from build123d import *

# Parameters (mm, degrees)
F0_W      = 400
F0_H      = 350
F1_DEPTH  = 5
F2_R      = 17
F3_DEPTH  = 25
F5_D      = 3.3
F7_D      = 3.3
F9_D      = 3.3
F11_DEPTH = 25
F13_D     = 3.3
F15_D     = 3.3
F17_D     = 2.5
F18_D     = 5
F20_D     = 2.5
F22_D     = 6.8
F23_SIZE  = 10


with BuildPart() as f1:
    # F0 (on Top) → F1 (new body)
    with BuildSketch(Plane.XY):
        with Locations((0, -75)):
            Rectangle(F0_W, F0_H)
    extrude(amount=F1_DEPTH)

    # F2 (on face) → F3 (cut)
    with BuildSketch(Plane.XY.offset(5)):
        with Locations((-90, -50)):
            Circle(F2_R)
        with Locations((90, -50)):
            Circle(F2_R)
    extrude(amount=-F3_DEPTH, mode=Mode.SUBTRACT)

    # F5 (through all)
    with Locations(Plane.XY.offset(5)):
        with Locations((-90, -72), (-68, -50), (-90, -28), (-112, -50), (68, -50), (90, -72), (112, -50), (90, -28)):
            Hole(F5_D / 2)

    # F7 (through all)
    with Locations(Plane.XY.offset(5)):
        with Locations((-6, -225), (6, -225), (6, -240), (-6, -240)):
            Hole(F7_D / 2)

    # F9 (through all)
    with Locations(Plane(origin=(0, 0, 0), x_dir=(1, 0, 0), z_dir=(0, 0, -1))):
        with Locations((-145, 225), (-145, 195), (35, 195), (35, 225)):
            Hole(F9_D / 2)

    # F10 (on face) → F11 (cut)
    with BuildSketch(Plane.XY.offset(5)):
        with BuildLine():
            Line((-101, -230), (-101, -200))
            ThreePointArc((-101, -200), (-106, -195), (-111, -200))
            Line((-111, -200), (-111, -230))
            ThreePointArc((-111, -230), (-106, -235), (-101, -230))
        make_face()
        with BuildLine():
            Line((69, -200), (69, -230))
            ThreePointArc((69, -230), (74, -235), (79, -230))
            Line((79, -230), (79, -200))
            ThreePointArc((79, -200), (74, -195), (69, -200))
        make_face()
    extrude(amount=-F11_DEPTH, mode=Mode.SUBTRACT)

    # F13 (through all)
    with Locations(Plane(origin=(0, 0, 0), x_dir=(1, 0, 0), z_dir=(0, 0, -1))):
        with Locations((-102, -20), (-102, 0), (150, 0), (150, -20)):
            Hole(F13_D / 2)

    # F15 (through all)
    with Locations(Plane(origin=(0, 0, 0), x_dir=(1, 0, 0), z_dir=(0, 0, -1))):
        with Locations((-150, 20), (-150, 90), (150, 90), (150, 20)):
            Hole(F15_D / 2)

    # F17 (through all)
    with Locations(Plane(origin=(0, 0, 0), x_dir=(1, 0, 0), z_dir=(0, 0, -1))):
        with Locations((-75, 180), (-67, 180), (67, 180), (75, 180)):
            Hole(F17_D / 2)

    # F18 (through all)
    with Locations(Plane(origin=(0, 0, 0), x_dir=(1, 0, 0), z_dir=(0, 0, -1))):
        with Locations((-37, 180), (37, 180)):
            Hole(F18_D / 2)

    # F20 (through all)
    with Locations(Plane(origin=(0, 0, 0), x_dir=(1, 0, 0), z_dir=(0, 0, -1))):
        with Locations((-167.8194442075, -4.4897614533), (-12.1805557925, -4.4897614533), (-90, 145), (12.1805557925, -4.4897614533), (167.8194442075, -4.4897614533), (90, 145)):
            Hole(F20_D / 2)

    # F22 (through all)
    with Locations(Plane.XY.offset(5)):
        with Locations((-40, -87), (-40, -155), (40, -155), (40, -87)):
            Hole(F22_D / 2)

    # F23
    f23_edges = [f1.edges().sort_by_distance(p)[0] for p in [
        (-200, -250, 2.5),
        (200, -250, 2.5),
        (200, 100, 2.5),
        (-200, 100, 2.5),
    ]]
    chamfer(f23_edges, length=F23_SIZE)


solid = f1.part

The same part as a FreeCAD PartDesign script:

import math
import FreeCAD as App
import Part
import Sketcher

V = App.Vector


def edges_at(feature, points):
    """Names of the edges that pass closest to the given points."""
    edges = feature.Shape.Edges
    near = lambda p: min(range(len(edges)), key=lambda i: edges[i].distToShape(Part.Vertex(*p))[0])
    return sorted({f"Edge{near(p) + 1}" for p in points})

doc = App.newDocument("Part")
body = doc.addObject("PartDesign::Body", "Body")

# Sketch on XY plane
sketch1 = doc.addObject("Sketcher::SketchObject", "Sketch")
body.addObject(sketch1)
sketch1.AttachmentSupport = (doc.XY_Plane, [""])
sketch1.MapMode = "FlatFace"
sketch1.addGeometry([
    Part.LineSegment(V(-200, 100, 0), V(-200, -250, 0)),
    Part.LineSegment(V(-200, -250, 0), V(200, -250, 0)),
    Part.LineSegment(V(200, -250, 0), V(200, 100, 0)),
    Part.LineSegment(V(200, 100, 0), V(-200, 100, 0)),
], False)
sketch1.addConstraint([
    Sketcher.Constraint("Coincident", 0, 2, 1, 1),
    Sketcher.Constraint("Coincident", 1, 2, 2, 1),
    Sketcher.Constraint("Coincident", 2, 2, 3, 1),
    Sketcher.Constraint("Coincident", 3, 2, 0, 1),
    Sketcher.Constraint("Vertical", 0),
    Sketcher.Constraint("Horizontal", 1),
    Sketcher.Constraint("Vertical", 2),
    Sketcher.Constraint("Horizontal", 3),
    Sketcher.Constraint("DistanceX", 1, 1, 1, 2, 400.0),
    Sketcher.Constraint("DistanceY", 0, 2, 0, 1, 350.0),
    Sketcher.Constraint("DistanceX", 0, 2, -1, 1, 200.0),
    Sketcher.Constraint("DistanceY", 0, 2, -1, 1, 250.0),
])
pad1 = doc.addObject("PartDesign::Pad", "Pad")
body.addObject(pad1)
pad1.Profile = sketch1
pad1.Length = 5

# Sketch on XY plane
sketch2 = doc.addObject("Sketcher::SketchObject", "Sketch001")
body.addObject(sketch2)
sketch2.AttachmentSupport = (doc.XY_Plane, [""])
sketch2.MapMode = "FlatFace"
sketch2.AttachmentOffset = App.Placement(V(0, 0, 5), App.Rotation())
sketch2.addGeometry([
    Part.Circle(V(-90, -50, 0), V(0, 0, 1), 17),
    Part.Circle(V(90, -50, 0), V(0, 0, 1), 17),
], False)
sketch2.addConstraint([
    Sketcher.Constraint("Equal", 0, 1),
    Sketcher.Constraint("Symmetric", 0, 3, 1, 3, -2),
    Sketcher.Constraint("Diameter", 0, 34.0),
    Sketcher.Constraint("DistanceX", 0, 3, -1, 1, 90.0),
    Sketcher.Constraint("DistanceY", 0, 3, -1, 1, 50.0),
])
pocket1 = doc.addObject("PartDesign::Pocket", "Pocket")
body.addObject(pocket1)
pocket1.Profile = sketch2
pocket1.Length = 25

# Sketch on XY plane
sketch3 = doc.addObject("Sketcher::SketchObject", "Sketch002")
body.addObject(sketch3)
sketch3.AttachmentSupport = (doc.XY_Plane, [""])
sketch3.MapMode = "FlatFace"
sketch3.AttachmentOffset = App.Placement(V(0, 0, 5), App.Rotation())
sketch3.addGeometry([
    Part.Circle(V(-90, -72, 0), V(0, 0, 1), 1.6),  # 0
    Part.Circle(V(-68, -50, 0), V(0, 0, 1), 1.6),  # 1
    Part.Circle(V(-90, -28, 0), V(0, 0, 1), 1.6),  # 2
    Part.Circle(V(-112, -50, 0), V(0, 0, 1), 1.6),  # 3
    Part.Circle(V(68, -50, 0), V(0, 0, 1), 1.6),  # 4
    Part.Circle(V(90, -72, 0), V(0, 0, 1), 1.6),  # 5
    Part.Circle(V(112, -50, 0), V(0, 0, 1), 1.6),  # 6
    Part.Circle(V(90, -28, 0), V(0, 0, 1), 1.6),  # 7
], False)
sketch3.addConstraint([
    Sketcher.Constraint("Equal", 0, 1),
    Sketcher.Constraint("Equal", 1, 2),
    Sketcher.Constraint("Equal", 2, 3),
    Sketcher.Constraint("Equal", 3, 4),
    Sketcher.Constraint("Equal", 4, 5),
    Sketcher.Constraint("Equal", 5, 6),
    Sketcher.Constraint("Equal", 6, 7),
    Sketcher.Constraint("Symmetric", 1, 3, 4, 3, -2),
    Sketcher.Constraint("Symmetric", 0, 3, 5, 3, -2),
    Sketcher.Constraint("Symmetric", 3, 3, 6, 3, -2),
    Sketcher.Constraint("Symmetric", 2, 3, 7, 3, -2),
    Sketcher.Constraint("Horizontal", 1, 3, 3, 3),
    Sketcher.Constraint("Vertical", 0, 3, 2, 3),
    Sketcher.Constraint("Diameter", 0, 3.3),
    Sketcher.Constraint("DistanceX", 0, 3, -1, 1, 90.0),
    Sketcher.Constraint("DistanceY", 0, 3, -1, 1, 72.0),
    Sketcher.Constraint("DistanceX", 1, 3, -1, 1, 68.0),
    Sketcher.Constraint("DistanceY", 1, 3, -1, 1, 50.0),
    Sketcher.Constraint("DistanceY", 2, 3, -1, 1, 28.0),
    Sketcher.Constraint("DistanceX", 3, 3, -1, 1, 112.0),
])
doc.recompute()
hole = doc.addObject("PartDesign::Hole", "Hole")
body.addObject(hole)
hole.Profile = sketch3
hole.ThreadType = "None"
hole.Diameter = 3.3
hole.DepthType = "ThroughAll"

# Sketch on XY plane
sketch4 = doc.addObject("Sketcher::SketchObject", "Sketch003")
body.addObject(sketch4)
sketch4.AttachmentSupport = (doc.XY_Plane, [""])
sketch4.MapMode = "FlatFace"
sketch4.AttachmentOffset = App.Placement(V(0, 0, 5), App.Rotation())
sketch4.addGeometry([
    Part.Circle(V(-6, -225, 0), V(0, 0, 1), 1.6),
    Part.Circle(V(6, -225, 0), V(0, 0, 1), 1.6),
    Part.Circle(V(6, -240, 0), V(0, 0, 1), 1.6),
    Part.Circle(V(-6, -240, 0), V(0, 0, 1), 1.6),
], False)
sketch4.addConstraint([
    Sketcher.Constraint("Equal", 0, 1),
    Sketcher.Constraint("Equal", 1, 2),
    Sketcher.Constraint("Equal", 2, 3),
    Sketcher.Constraint("Symmetric", 0, 3, 1, 3, -2),
    Sketcher.Constraint("Symmetric", 2, 3, 3, 3, -2),
    Sketcher.Constraint("Vertical", 1, 3, 2, 3),
    Sketcher.Constraint("Diameter", 0, 3.3),
    Sketcher.Constraint("DistanceX", 0, 3, -1, 1, 6.0),
    Sketcher.Constraint("DistanceY", 0, 3, -1, 1, 225.0),
    Sketcher.Constraint("DistanceY", 2, 3, -1, 1, 240.0),
])
doc.recompute()
hole2 = doc.addObject("PartDesign::Hole", "Hole001")
body.addObject(hole2)
hole2.Profile = sketch4
hole2.ThreadType = "None"
hole2.Diameter = 3.3
hole2.DepthType = "ThroughAll"

# Sketch on XY plane
sketch5 = doc.addObject("Sketcher::SketchObject", "Sketch004")
body.addObject(sketch5)
sketch5.AttachmentSupport = (doc.XY_Plane, [""])
sketch5.MapMode = "FlatFace"
sketch5.addGeometry([
    Part.Circle(V(-145, -225, 0), V(0, 0, 1), 1.6),
    Part.Circle(V(-145, -195, 0), V(0, 0, 1), 1.6),
    Part.Circle(V(35, -195, 0), V(0, 0, 1), 1.6),
    Part.Circle(V(35, -225, 0), V(0, 0, 1), 1.6),
], False)
sketch5.addConstraint([
    Sketcher.Constraint("Equal", 0, 1),
    Sketcher.Constraint("Equal", 1, 2),
    Sketcher.Constraint("Equal", 2, 3),
    Sketcher.Constraint("Horizontal", 1, 3, 2, 3),
    Sketcher.Constraint("Horizontal", 0, 3, 3, 3),
    Sketcher.Constraint("Vertical", 0, 3, 1, 3),
    Sketcher.Constraint("Vertical", 2, 3, 3, 3),
    Sketcher.Constraint("Diameter", 0, 3.3),
    Sketcher.Constraint("DistanceX", 0, 3, -1, 1, 145.0),
    Sketcher.Constraint("DistanceY", 0, 3, -1, 1, 225.0),
    Sketcher.Constraint("DistanceY", 1, 3, -1, 1, 195.0),
    Sketcher.Constraint("DistanceX", -1, 1, 2, 3, 35.0),
])
doc.recompute()
hole3 = doc.addObject("PartDesign::Hole", "Hole002")
body.addObject(hole3)
hole3.Profile = sketch5
hole3.ThreadType = "None"
hole3.Diameter = 3.3
hole3.DepthType = "ThroughAll"
hole3.Reversed = True

# Sketch on XY plane
sketch6 = doc.addObject("Sketcher::SketchObject", "Sketch005")
body.addObject(sketch6)
sketch6.AttachmentSupport = (doc.XY_Plane, [""])
sketch6.MapMode = "FlatFace"
sketch6.AttachmentOffset = App.Placement(V(0, 0, 5), App.Rotation())
sketch6.addGeometry([
    Part.LineSegment(V(-101, -230, 0), V(-101, -200, 0)),  # 0
    Part.ArcOfCircle(Part.Circle(V(-106, -200, 0), V(0, 0, 1), 5), math.radians(0), math.radians(180)),  # 1
    Part.LineSegment(V(-111, -200, 0), V(-111, -230, 0)),  # 2
    Part.ArcOfCircle(Part.Circle(V(-106, -230, 0), V(0, 0, 1), 5), math.radians(180), math.radians(360)),  # 3
    Part.LineSegment(V(69, -200, 0), V(69, -230, 0)),  # 4
    Part.ArcOfCircle(Part.Circle(V(74, -230, 0), V(0, 0, 1), 5), math.radians(180), math.radians(360)),  # 5
    Part.LineSegment(V(79, -230, 0), V(79, -200, 0)),  # 6
    Part.ArcOfCircle(Part.Circle(V(74, -200, 0), V(0, 0, 1), 5), math.radians(0), math.radians(180)),  # 7
], False)
sketch6.addConstraint([
    Sketcher.Constraint("Tangent", 0, 2, 1, 1),
    Sketcher.Constraint("Tangent", 1, 2, 2, 1),
    Sketcher.Constraint("Tangent", 2, 2, 3, 1),
    Sketcher.Constraint("Tangent", 3, 2, 0, 1),
    Sketcher.Constraint("Tangent", 4, 2, 5, 1),
    Sketcher.Constraint("Tangent", 5, 2, 6, 1),
    Sketcher.Constraint("Tangent", 6, 2, 7, 1),
    Sketcher.Constraint("Tangent", 7, 2, 4, 1),
    Sketcher.Constraint("Vertical", 0),
    Sketcher.Constraint("Vertical", 2),
    Sketcher.Constraint("Vertical", 4),
    Sketcher.Constraint("Vertical", 6),
    Sketcher.Constraint("Equal", 3, 5),
    Sketcher.Constraint("Horizontal", 3, 3, 5, 3),
    Sketcher.Constraint("Horizontal", 1, 3, 7, 3),
    Sketcher.Constraint("Radius", 1, 5.0),
    Sketcher.Constraint("DistanceY", 0, 1, 0, 2, 30.0),
    Sketcher.Constraint("DistanceX", 1, 3, -1, 1, 106.0),
    Sketcher.Constraint("DistanceY", 1, 3, -1, 1, 200.0),
    Sketcher.Constraint("DistanceX", -1, 1, 5, 3, 74.0),
])
pocket2 = doc.addObject("PartDesign::Pocket", "Pocket001")
body.addObject(pocket2)
pocket2.Profile = sketch6
pocket2.Length = 25

# Sketch on XY plane
sketch7 = doc.addObject("Sketcher::SketchObject", "Sketch006")
body.addObject(sketch7)
sketch7.AttachmentSupport = (doc.XY_Plane, [""])
sketch7.MapMode = "FlatFace"
sketch7.addGeometry([
    Part.Circle(V(-102, 20, 0), V(0, 0, 1), 1.6),
    Part.Circle(V(-102, 0, 0), V(0, 0, 1), 1.6),
    Part.Circle(V(150, 0, 0), V(0, 0, 1), 1.6),
    Part.Circle(V(150, 20, 0), V(0, 0, 1), 1.6),
], False)
sketch7.addConstraint([
    Sketcher.Constraint("Equal", 0, 1),
    Sketcher.Constraint("Equal", 1, 2),
    Sketcher.Constraint("Equal", 2, 3),
    Sketcher.Constraint("PointOnObject", 1, 3, -1),
    Sketcher.Constraint("PointOnObject", 2, 3, -1),
    Sketcher.Constraint("Horizontal", 0, 3, 3, 3),
    Sketcher.Constraint("Vertical", 0, 3, 1, 3),
    Sketcher.Constraint("Vertical", 2, 3, 3, 3),
    Sketcher.Constraint("Diameter", 0, 3.3),
    Sketcher.Constraint("DistanceX", 0, 3, -1, 1, 102.0),
    Sketcher.Constraint("DistanceY", -1, 1, 0, 3, 20.0),
    Sketcher.Constraint("DistanceX", -1, 1, 2, 3, 150.0),
])
doc.recompute()
hole4 = doc.addObject("PartDesign::Hole", "Hole003")
body.addObject(hole4)
hole4.Profile = sketch7
hole4.ThreadType = "None"
hole4.Diameter = 3.3
hole4.DepthType = "ThroughAll"
hole4.Reversed = True

# Sketch on XY plane
sketch8 = doc.addObject("Sketcher::SketchObject", "Sketch007")
body.addObject(sketch8)
sketch8.AttachmentSupport = (doc.XY_Plane, [""])
sketch8.MapMode = "FlatFace"
sketch8.addGeometry([
    Part.Circle(V(-150, -20, 0), V(0, 0, 1), 1.6),
    Part.Circle(V(-150, -90, 0), V(0, 0, 1), 1.6),
    Part.Circle(V(150, -90, 0), V(0, 0, 1), 1.6),
    Part.Circle(V(150, -20, 0), V(0, 0, 1), 1.6),
], False)
sketch8.addConstraint([
    Sketcher.Constraint("Equal", 0, 1),
    Sketcher.Constraint("Equal", 1, 2),
    Sketcher.Constraint("Equal", 2, 3),
    Sketcher.Constraint("Symmetric", 1, 3, 2, 3, -2),
    Sketcher.Constraint("Symmetric", 0, 3, 3, 3, -2),
    Sketcher.Constraint("Vertical", 0, 3, 1, 3),
    Sketcher.Constraint("Diameter", 0, 3.3),
    Sketcher.Constraint("DistanceX", 0, 3, -1, 1, 150.0),
    Sketcher.Constraint("DistanceY", 0, 3, -1, 1, 20.0),
    Sketcher.Constraint("DistanceY", 1, 3, -1, 1, 90.0),
])
doc.recompute()
hole5 = doc.addObject("PartDesign::Hole", "Hole004")
body.addObject(hole5)
hole5.Profile = sketch8
hole5.ThreadType = "None"
hole5.Diameter = 3.3
hole5.DepthType = "ThroughAll"
hole5.Reversed = True

# Sketch on XY plane
sketch9 = doc.addObject("Sketcher::SketchObject", "Sketch008")
body.addObject(sketch9)
sketch9.AttachmentSupport = (doc.XY_Plane, [""])
sketch9.MapMode = "FlatFace"
sketch9.addGeometry([
    Part.Circle(V(-75, -180, 0), V(0, 0, 1), 1.2),
    Part.Circle(V(-67, -180, 0), V(0, 0, 1), 1.2),
    Part.Circle(V(67, -180, 0), V(0, 0, 1), 1.2),
    Part.Circle(V(75, -180, 0), V(0, 0, 1), 1.2),
], False)
sketch9.addConstraint([
    Sketcher.Constraint("Equal", 0, 1),
    Sketcher.Constraint("Equal", 1, 2),
    Sketcher.Constraint("Equal", 2, 3),
    Sketcher.Constraint("Symmetric", 1, 3, 2, 3, -2),
    Sketcher.Constraint("Symmetric", 0, 3, 3, 3, -2),
    Sketcher.Constraint("Horizontal", 0, 3, 1, 3),
    Sketcher.Constraint("Diameter", 0, 2.5),
    Sketcher.Constraint("DistanceX", 0, 3, -1, 1, 75.0),
    Sketcher.Constraint("DistanceY", 0, 3, -1, 1, 180.0),
    Sketcher.Constraint("DistanceX", 1, 3, -1, 1, 67.0),
])
doc.recompute()
hole6 = doc.addObject("PartDesign::Hole", "Hole005")
body.addObject(hole6)
hole6.Profile = sketch9
hole6.ThreadType = "None"
hole6.Diameter = 2.5
hole6.DepthType = "ThroughAll"
hole6.Reversed = True

# Sketch on XY plane
sketch10 = doc.addObject("Sketcher::SketchObject", "Sketch009")
body.addObject(sketch10)
sketch10.AttachmentSupport = (doc.XY_Plane, [""])
sketch10.MapMode = "FlatFace"
sketch10.addGeometry([
    Part.Circle(V(-37, -180, 0), V(0, 0, 1), 2.5),
    Part.Circle(V(37, -180, 0), V(0, 0, 1), 2.5),
], False)
sketch10.addConstraint([
    Sketcher.Constraint("Equal", 0, 1),
    Sketcher.Constraint("Symmetric", 0, 3, 1, 3, -2),
    Sketcher.Constraint("Diameter", 0, 5.0),
    Sketcher.Constraint("DistanceX", 0, 3, -1, 1, 37.0),
    Sketcher.Constraint("DistanceY", 0, 3, -1, 1, 180.0),
])
doc.recompute()
hole7 = doc.addObject("PartDesign::Hole", "Hole006")
body.addObject(hole7)
hole7.Profile = sketch10
hole7.ThreadType = "None"
hole7.Diameter = 5
hole7.DepthType = "ThroughAll"
hole7.Reversed = True

# Sketch on XY plane
sketch11 = doc.addObject("Sketcher::SketchObject", "Sketch010")
body.addObject(sketch11)
sketch11.AttachmentSupport = (doc.XY_Plane, [""])
sketch11.MapMode = "FlatFace"
sketch11.addGeometry([
    Part.Circle(V(-167.8, 4.5, 0), V(0, 0, 1), 1.2),  # 0
    Part.Circle(V(-12.2, 4.5, 0), V(0, 0, 1), 1.2),  # 1
    Part.Circle(V(-90, -145, 0), V(0, 0, 1), 1.2),  # 2
    Part.Circle(V(12.2, 4.5, 0), V(0, 0, 1), 1.2),  # 3
    Part.Circle(V(167.8, 4.5, 0), V(0, 0, 1), 1.2),  # 4
    Part.Circle(V(90, -145, 0), V(0, 0, 1), 1.2),  # 5
], False)
sketch11.addConstraint([
    Sketcher.Constraint("Equal", 0, 1),
    Sketcher.Constraint("Equal", 1, 2),
    Sketcher.Constraint("Equal", 2, 3),
    Sketcher.Constraint("Equal", 3, 4),
    Sketcher.Constraint("Equal", 4, 5),
    Sketcher.Constraint("Symmetric", 1, 3, 3, 3, -2),
    Sketcher.Constraint("Symmetric", 0, 3, 4, 3, -2),
    Sketcher.Constraint("Symmetric", 2, 3, 5, 3, -2),
    Sketcher.Constraint("Horizontal", 0, 3, 1, 3),
    Sketcher.Constraint("Diameter", 0, 2.5),
    Sketcher.Constraint("DistanceX", 2, 3, -1, 1, 90.0),
    Sketcher.Constraint("DistanceY", 2, 3, -1, 1, 145.0),
    Sketcher.Constraint("DistanceX", 0, 3, 3, 3, 180.0),
    Sketcher.Constraint("DistanceY", -1, 1, 0, 3, 4.489761),
    Sketcher.Constraint("DistanceX", 0, 3, 1, 3, 155.638888),
])
doc.recompute()
hole8 = doc.addObject("PartDesign::Hole", "Hole007")
body.addObject(hole8)
hole8.Profile = sketch11
hole8.ThreadType = "None"
hole8.Diameter = 2.5
hole8.DepthType = "ThroughAll"
hole8.Reversed = True

# Sketch on XY plane
sketch12 = doc.addObject("Sketcher::SketchObject", "Sketch011")
body.addObject(sketch12)
sketch12.AttachmentSupport = (doc.XY_Plane, [""])
sketch12.MapMode = "FlatFace"
sketch12.AttachmentOffset = App.Placement(V(0, 0, 5), App.Rotation())
sketch12.addGeometry([
    Part.Circle(V(-40, -87, 0), V(0, 0, 1), 3.4),
    Part.Circle(V(-40, -155, 0), V(0, 0, 1), 3.4),
    Part.Circle(V(40, -155, 0), V(0, 0, 1), 3.4),
    Part.Circle(V(40, -87, 0), V(0, 0, 1), 3.4),
], False)
sketch12.addConstraint([
    Sketcher.Constraint("Equal", 0, 1),
    Sketcher.Constraint("Equal", 1, 2),
    Sketcher.Constraint("Equal", 2, 3),
    Sketcher.Constraint("Symmetric", 1, 3, 2, 3, -2),
    Sketcher.Constraint("Symmetric", 0, 3, 3, 3, -2),
    Sketcher.Constraint("Vertical", 0, 3, 1, 3),
    Sketcher.Constraint("Diameter", 0, 6.8),
    Sketcher.Constraint("DistanceX", 0, 3, -1, 1, 40.0),
    Sketcher.Constraint("DistanceY", 0, 3, -1, 1, 87.0),
    Sketcher.Constraint("DistanceY", 1, 3, -1, 1, 155.0),
])
doc.recompute()
hole9 = doc.addObject("PartDesign::Hole", "Hole008")
body.addObject(hole9)
hole9.Profile = sketch12
hole9.ThreadType = "None"
hole9.Diameter = 6.8
hole9.DepthType = "ThroughAll"
doc.recompute()

chamfer = doc.addObject("PartDesign::Chamfer", "Chamfer")
body.addObject(chamfer)
chamfer.Base = (hole9, edges_at(hole9, [
    (-200, -250, 2.5),
    (200, -250, 2.5),
    (200, 100, 2.5),
    (-200, 100, 2.5),
]))
chamfer.Size = 10

doc.recompute()
